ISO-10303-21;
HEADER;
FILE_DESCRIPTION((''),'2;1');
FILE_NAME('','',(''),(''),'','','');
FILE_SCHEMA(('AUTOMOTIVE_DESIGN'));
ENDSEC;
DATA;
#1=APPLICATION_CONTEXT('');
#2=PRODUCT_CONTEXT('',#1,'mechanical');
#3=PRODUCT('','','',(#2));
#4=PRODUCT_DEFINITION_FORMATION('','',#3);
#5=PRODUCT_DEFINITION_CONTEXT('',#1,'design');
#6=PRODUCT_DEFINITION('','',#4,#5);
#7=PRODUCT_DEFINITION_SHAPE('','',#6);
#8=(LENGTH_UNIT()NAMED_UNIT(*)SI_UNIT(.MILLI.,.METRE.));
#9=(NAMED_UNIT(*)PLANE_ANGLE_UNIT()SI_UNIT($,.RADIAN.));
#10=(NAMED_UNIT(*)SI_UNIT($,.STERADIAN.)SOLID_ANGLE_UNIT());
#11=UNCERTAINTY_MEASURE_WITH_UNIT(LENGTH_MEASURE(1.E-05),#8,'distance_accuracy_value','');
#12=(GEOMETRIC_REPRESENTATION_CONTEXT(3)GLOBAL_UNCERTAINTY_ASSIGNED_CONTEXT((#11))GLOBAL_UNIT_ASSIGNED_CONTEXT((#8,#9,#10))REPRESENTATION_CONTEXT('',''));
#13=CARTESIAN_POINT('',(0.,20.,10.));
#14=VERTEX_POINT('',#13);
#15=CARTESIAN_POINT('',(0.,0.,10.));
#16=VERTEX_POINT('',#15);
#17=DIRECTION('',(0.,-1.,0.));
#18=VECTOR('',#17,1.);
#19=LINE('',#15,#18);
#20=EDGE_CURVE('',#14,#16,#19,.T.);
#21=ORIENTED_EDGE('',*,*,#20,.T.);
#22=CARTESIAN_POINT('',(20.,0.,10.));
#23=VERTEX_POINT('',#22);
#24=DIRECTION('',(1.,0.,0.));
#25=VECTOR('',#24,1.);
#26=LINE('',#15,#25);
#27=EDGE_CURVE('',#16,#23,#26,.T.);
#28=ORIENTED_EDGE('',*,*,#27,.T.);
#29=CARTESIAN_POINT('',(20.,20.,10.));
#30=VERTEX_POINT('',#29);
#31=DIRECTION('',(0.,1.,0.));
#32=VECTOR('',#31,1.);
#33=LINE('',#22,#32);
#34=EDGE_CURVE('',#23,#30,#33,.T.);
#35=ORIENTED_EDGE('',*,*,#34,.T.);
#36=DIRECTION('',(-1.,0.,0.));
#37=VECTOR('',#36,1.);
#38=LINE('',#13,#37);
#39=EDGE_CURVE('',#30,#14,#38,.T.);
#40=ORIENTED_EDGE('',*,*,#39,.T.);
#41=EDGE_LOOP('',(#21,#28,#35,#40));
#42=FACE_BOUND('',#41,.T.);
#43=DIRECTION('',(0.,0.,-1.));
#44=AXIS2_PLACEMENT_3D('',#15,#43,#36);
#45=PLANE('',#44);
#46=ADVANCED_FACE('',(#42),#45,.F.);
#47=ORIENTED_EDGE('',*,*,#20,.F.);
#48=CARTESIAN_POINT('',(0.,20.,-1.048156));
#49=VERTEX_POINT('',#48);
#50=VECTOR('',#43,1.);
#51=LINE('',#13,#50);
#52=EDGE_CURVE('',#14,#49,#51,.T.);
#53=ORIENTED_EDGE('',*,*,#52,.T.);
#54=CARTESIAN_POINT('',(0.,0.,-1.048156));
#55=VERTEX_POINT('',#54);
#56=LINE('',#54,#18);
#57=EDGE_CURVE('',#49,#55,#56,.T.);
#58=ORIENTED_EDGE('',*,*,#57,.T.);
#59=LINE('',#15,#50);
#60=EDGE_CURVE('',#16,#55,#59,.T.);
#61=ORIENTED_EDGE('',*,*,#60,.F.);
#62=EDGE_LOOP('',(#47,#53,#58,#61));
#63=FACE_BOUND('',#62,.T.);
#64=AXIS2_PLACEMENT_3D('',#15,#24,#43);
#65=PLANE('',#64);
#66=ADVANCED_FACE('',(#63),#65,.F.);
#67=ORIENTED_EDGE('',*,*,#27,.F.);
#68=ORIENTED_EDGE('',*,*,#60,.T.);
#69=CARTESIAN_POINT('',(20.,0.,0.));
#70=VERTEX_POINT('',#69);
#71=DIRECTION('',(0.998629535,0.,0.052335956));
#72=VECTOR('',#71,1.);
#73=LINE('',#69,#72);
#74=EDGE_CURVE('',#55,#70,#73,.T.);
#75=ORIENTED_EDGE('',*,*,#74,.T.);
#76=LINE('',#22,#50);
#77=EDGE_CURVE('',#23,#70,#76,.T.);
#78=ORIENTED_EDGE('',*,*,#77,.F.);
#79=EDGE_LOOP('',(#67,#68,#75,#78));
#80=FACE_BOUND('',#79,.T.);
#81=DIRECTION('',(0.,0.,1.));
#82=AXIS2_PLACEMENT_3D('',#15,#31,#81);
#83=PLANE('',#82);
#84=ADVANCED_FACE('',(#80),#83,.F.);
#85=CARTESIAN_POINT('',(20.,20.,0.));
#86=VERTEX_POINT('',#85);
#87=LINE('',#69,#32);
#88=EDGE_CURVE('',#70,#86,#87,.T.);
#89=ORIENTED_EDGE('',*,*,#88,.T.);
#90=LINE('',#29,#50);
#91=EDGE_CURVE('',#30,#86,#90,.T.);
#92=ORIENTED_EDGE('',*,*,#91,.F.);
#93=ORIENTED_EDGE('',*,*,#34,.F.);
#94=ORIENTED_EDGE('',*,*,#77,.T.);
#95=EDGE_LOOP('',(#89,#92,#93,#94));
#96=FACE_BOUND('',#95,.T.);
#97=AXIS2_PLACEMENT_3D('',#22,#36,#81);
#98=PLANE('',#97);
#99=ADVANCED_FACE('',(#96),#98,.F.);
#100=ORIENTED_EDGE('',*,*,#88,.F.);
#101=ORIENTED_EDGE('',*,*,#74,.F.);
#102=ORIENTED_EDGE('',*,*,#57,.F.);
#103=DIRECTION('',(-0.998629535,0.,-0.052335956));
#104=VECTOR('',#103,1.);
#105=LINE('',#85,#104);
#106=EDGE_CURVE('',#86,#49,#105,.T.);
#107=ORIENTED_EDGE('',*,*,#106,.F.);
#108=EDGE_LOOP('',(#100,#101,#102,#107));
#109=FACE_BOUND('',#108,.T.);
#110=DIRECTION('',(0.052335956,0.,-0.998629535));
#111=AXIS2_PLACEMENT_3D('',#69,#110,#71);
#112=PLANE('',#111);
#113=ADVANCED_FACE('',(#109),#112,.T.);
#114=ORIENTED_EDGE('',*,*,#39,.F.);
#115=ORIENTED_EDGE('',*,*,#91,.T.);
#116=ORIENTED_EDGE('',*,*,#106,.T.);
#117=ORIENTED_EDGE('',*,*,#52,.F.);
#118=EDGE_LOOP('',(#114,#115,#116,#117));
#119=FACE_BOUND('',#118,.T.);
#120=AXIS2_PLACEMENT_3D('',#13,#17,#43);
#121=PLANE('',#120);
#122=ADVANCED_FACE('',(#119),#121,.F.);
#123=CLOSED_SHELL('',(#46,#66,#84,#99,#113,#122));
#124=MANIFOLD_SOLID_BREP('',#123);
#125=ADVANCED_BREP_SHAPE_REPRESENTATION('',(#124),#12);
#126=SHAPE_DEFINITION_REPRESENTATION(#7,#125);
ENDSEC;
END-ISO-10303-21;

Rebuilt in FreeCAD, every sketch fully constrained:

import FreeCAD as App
import Part
import Sketcher

V = App.Vector
Q = App.Units.Quantity


def faces_at(feature, points):
    """Names of the faces that lie closest to the given points."""
    faces = feature.Shape.Faces
    near = lambda p: min(range(len(faces)), key=lambda i: faces[i].distToShape(Part.Vertex(*p))[0])
    return sorted({f"Face{near(p) + 1}" for p in points})


def add_polygon(sketch, points):
    """Adds a closed chain of lines whose ends are joined by coincident constraints."""
    first, n = sketch.GeometryCount, len(points)
    for a, b in zip(points, points[1:] + points[:1]):
        sketch.addGeometry(Part.LineSegment(App.Vector(*a, 0), App.Vector(*b, 0)), False)
    for i in range(n):
        sketch.addConstraint(Sketcher.Constraint("Coincident", first + i, 2, first + (i + 1) % n, 1))

doc = App.newDocument("Part")
params = doc.addObject("Spreadsheet::Sheet", "Params")
for row, (alias, value) in enumerate([
    ("sketch1_width", "20 mm"),
    ("pad1_length", "10 mm"),
    ("draft_angle", "3 deg"),
], start=1):
    params.set(f"A{row}", alias)
    params.set(f"B{row}", "=" + value)
    params.setAlias(f"B{row}", alias)

body = doc.addObject("PartDesign::Body", "Body")

sketch1 = body.newObject("Sketcher::SketchObject", "Sketch")
sketch1.AttachmentSupport = (doc.getObject("XY_Plane"), [""])
sketch1.MapMode = "FlatFace"
add_polygon(sketch1, [(0, 20), (0, 0), (20, 0), (20, 20)])
sketch1.addConstraint(Sketcher.Constraint("Vertical", 0))
sketch1.addConstraint(Sketcher.Constraint("Horizontal", 1))
sketch1.addConstraint(Sketcher.Constraint("Vertical", 2))
sketch1.addConstraint(Sketcher.Constraint("Horizontal", 3))
sketch1.addConstraint(Sketcher.Constraint("Coincident", 0, 2, -1, 1))
sketch1.addConstraint(Sketcher.Constraint("Equal", 3, 0))
sketch1.addConstraint(Sketcher.Constraint("DistanceX", 1, 1, 1, 2, Q("20 mm")))
sketch1.setExpression("Constraints[10]", "Params.sketch1_width")
pad1 = body.newObject("PartDesign::Pad", "Pad")
pad1.Profile = sketch1
pad1.setExpression("Length", "Params.pad1_length")
doc.recompute()

datumplane = body.newObject("PartDesign::Plane", "DatumPlane")
datumplane.AttachmentSupport = (doc.getObject("YZ_Plane"), [""])
datumplane.MapMode = "FlatFace"
datumplane.AttachmentOffset = App.Placement(V(0, 0, 20), App.Rotation())
draft = body.newObject("PartDesign::Draft", "Draft")
draft.Base = (pad1, faces_at(pad1, [(10, 10, 0)]))
draft.NeutralPlane = (datumplane, [""])
draft.setExpression("Angle", "Params.draft_angle")
draft.Reversed = False

doc.recompute()
